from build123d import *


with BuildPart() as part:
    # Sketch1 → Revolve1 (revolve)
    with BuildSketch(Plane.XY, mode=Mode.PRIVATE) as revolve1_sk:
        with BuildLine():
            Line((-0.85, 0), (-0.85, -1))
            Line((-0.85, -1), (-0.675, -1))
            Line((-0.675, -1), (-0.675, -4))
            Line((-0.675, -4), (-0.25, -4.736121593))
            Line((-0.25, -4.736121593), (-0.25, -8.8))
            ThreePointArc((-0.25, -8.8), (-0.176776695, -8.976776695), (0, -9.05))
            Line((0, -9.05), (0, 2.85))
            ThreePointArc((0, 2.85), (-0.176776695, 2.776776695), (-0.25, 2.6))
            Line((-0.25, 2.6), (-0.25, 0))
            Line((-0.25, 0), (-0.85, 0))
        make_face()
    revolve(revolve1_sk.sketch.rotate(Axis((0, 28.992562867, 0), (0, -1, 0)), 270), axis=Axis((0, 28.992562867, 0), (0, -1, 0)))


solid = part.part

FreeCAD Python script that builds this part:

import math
import FreeCAD as App
import Part
import Sketcher
Q = App.Units.Quantity

doc = App.newDocument("Part")
body = doc.addObject("PartDesign::Body", "Body")

sketch1 = body.newObject("Sketcher::SketchObject", "Sketch")
sketch1.AttachmentSupport = (doc.getObject("XY_Plane"), [""])
sketch1.MapMode = "FlatFace"
sketch1.addGeometry(Part.LineSegment(App.Vector(-0.85, 0, 0), App.Vector(-0.85, -1, 0)), False)
sketch1.addGeometry(Part.LineSegment(App.Vector(-0.85, -1, 0), App.Vector(-0.68, -1, 0)), False)
sketch1.addGeometry(Part.LineSegment(App.Vector(-0.68, -1, 0), App.Vector(-0.68, -4, 0)), False)
sketch1.addGeometry(Part.LineSegment(App.Vector(-0.68, -4, 0), App.Vector(-0.25, -4.74, 0)), False)
sketch1.addGeometry(Part.LineSegment(App.Vector(-0.25, -4.74, 0), App.Vector(-0.25, -8.8, 0)), False)
sketch1.addGeometry(Part.ArcOfCircle(Part.Circle(App.Vector(0, -8.8, 0), App.Vector(0, 0, 1), 0.25), math.radians(-180), math.radians(-90)), False)
sketch1.addGeometry(Part.LineSegment(App.Vector(0, -9.05, 0), App.Vector(0, 2.85, 0)), False)
sketch1.addGeometry(Part.ArcOfCircle(Part.Circle(App.Vector(0, 2.6, 0), App.Vector(0, 0, 1), 0.25), math.radians(90), math.radians(180)), False)
sketch1.addGeometry(Part.LineSegment(App.Vector(-0.25, 2.6, 0), App.Vector(-0.25, 0, 0)), False)
sketch1.addGeometry(Part.LineSegment(App.Vector(-0.25, 0, 0), App.Vector(-0.85, 0, 0)), False)
sketch1.addConstraint(Sketcher.Constraint("Coincident", 0, 2, 1, 1))
sketch1.addConstraint(Sketcher.Constraint("Coincident", 1, 2, 2, 1))
sketch1.addConstraint(Sketcher.Constraint("Coincident", 2, 2, 3, 1))
sketch1.addConstraint(Sketcher.Constraint("Coincident", 3, 2, 4, 1))
sketch1.addConstraint(Sketcher.Constraint("Tangent", 4, 2, 5, 1))
sketch1.addConstraint(Sketcher.Constraint("Coincident", 5, 2, 6, 1))
sketch1.addConstraint(Sketcher.Constraint("Coincident", 6, 2, 7, 1))
sketch1.addConstraint(Sketcher.Constraint("Tangent", 7, 2, 8, 1))
sketch1.addConstraint(Sketcher.Constraint("Coincident", 8, 2, 9, 1))
sketch1.addConstraint(Sketcher.Constraint("Coincident", 9, 2, 0, 1))
sketch1.addConstraint(Sketcher.Constraint("Vertical", 0))
sketch1.addConstraint(Sketcher.Constraint("Horizontal", 1))
sketch1.addConstraint(Sketcher.Constraint("Vertical", 2))
sketch1.addConstraint(Sketcher.Constraint("Vertical", 4))
sketch1.addConstraint(Sketcher.Constraint("Vertical", 6))
sketch1.addConstraint(Sketcher.Constraint("Vertical", 8))
sketch1.addConstraint(Sketcher.Constraint("Horizontal", 9))
sketch1.addConstraint(Sketcher.Constraint("Equal", 5, 7))
sketch1.addConstraint(Sketcher.Constraint("PointOnObject", 5, 3, -2))
sketch1.addConstraint(Sketcher.Constraint("PointOnObject", 7, 3, -2))
sketch1.addConstraint(Sketcher.Constraint("PointOnObject", 5, 2, -2))
sketch1.addConstraint(Sketcher.Constraint("PointOnObject", 8, 2, -1))
sketch1.addConstraint(Sketcher.Constraint("DistanceY", 0, 2, 0, 1, Q("1 mm")))
sketch1.addConstraint(Sketcher.Constraint("DistanceY", 2, 2, 2, 1, Q("3 mm")))
sketch1.addConstraint(Sketcher.Constraint("Angle", 3, Q("-60 deg")))
sketch1.addConstraint(Sketcher.Constraint("Radius", 5, Q("0.25 mm")))
sketch1.addConstraint(Sketcher.Constraint("DistanceX", 9, 2, 9, 1, Q("0.6 mm")))
sketch1.addConstraint(Sketcher.Constraint("DistanceY", 6, 1, 6, 2, Q("11.9 mm")))
sketch1.addConstraint(Sketcher.Constraint("DistanceY", 8, 2, 8, 1, Q("2.6 mm")))
sketch1.addConstraint(Sketcher.Constraint("Distance", 3, Q("0.85 mm")))
revolution = body.newObject("PartDesign::Revolution", "Revolution")
revolution.Profile = sketch1
revolution.ReferenceAxis = (sketch1, ["V_Axis"])
revolution.Angle = 360

doc.recompute()
